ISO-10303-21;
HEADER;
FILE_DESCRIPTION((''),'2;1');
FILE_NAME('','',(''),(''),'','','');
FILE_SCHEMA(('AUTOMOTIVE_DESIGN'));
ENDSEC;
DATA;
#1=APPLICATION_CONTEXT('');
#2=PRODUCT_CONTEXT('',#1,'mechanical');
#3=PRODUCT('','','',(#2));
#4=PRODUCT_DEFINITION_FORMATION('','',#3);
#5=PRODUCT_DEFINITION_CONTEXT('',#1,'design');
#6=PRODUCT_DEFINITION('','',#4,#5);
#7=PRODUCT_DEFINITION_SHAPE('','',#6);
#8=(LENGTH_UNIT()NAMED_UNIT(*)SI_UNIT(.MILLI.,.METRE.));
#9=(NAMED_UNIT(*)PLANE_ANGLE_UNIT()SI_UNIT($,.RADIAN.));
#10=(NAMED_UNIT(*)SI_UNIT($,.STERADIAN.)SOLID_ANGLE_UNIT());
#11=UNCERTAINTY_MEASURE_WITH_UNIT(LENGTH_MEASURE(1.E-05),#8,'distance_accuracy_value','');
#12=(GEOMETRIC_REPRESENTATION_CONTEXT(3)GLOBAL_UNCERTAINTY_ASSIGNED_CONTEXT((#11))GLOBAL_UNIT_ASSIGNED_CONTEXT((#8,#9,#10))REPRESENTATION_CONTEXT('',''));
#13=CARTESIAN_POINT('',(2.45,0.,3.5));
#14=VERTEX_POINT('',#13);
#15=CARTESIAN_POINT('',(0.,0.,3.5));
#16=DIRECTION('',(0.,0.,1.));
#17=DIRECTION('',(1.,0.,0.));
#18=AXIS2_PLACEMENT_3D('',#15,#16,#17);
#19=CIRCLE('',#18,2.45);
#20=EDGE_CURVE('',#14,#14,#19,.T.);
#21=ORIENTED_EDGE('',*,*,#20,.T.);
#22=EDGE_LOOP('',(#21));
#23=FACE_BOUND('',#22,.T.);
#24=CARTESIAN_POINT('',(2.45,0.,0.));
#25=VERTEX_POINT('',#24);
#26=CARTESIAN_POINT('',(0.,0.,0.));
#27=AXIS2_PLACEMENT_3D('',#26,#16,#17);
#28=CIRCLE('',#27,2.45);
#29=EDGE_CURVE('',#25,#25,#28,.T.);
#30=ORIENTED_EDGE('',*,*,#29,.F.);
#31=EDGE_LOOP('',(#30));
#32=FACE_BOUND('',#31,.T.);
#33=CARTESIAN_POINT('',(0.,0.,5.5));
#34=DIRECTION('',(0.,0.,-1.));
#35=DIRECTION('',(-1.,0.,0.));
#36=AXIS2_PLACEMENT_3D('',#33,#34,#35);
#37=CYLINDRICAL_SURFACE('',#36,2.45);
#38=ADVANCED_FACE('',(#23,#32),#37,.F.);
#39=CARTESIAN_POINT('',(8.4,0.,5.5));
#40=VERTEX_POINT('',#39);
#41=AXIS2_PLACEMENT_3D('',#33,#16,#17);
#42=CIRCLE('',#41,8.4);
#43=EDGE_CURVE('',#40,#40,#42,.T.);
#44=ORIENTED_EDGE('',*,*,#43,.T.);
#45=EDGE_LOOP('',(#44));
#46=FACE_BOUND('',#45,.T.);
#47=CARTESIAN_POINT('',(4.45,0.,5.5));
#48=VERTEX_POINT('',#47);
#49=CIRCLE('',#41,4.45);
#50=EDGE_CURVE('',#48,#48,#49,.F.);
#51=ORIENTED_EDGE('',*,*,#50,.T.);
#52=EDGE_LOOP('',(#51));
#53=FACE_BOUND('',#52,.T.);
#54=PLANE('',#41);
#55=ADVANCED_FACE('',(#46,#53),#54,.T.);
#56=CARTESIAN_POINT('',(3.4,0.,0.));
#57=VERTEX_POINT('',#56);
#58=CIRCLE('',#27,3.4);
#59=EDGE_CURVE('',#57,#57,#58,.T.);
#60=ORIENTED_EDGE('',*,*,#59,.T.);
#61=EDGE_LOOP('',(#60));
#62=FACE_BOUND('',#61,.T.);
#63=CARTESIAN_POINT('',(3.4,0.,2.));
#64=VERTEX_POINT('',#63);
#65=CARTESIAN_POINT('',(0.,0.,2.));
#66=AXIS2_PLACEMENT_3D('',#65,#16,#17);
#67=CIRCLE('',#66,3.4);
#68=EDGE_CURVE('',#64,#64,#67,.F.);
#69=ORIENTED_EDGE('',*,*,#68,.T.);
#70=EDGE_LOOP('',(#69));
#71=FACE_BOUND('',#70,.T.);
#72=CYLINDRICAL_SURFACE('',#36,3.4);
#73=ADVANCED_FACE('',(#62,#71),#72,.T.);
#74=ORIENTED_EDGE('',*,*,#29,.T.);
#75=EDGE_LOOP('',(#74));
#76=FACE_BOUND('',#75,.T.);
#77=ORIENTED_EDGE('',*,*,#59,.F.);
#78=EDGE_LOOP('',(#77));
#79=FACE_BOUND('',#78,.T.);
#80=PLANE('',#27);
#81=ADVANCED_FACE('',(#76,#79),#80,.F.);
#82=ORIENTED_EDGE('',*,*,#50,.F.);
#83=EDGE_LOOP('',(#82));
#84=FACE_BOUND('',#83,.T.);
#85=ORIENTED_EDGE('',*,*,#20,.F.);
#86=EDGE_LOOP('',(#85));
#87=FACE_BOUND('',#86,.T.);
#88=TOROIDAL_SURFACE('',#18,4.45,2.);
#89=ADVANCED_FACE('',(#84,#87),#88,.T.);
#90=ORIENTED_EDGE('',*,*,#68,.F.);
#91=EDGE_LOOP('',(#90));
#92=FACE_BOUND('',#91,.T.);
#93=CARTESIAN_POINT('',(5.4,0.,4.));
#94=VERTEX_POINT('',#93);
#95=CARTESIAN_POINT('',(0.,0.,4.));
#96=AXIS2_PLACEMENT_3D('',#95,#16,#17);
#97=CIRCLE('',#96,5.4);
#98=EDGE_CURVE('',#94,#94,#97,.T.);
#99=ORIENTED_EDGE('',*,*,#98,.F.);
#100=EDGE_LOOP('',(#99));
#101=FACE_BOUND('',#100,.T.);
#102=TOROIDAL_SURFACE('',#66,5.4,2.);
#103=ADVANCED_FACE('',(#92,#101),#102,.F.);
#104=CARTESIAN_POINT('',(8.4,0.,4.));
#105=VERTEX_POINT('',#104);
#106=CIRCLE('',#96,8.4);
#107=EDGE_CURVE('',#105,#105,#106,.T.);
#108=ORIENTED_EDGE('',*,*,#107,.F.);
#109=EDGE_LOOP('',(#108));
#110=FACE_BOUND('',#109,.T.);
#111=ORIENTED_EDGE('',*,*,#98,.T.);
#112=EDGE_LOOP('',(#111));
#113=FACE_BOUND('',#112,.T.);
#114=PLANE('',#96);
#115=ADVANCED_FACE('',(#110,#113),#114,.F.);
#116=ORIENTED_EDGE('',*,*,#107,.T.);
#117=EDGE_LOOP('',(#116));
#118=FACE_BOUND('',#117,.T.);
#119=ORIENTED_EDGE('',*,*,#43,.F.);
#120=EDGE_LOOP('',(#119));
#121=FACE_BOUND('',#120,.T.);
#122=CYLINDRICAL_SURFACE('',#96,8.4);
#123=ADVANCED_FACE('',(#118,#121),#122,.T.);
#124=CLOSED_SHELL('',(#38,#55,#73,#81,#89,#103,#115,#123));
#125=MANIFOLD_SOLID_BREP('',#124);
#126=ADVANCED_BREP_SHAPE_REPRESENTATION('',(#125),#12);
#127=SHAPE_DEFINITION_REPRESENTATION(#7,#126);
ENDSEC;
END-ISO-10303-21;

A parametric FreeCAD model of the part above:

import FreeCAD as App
import Part
import Sketcher

V = App.Vector
Q = App.Units.Quantity


def edges_at(feature, points):
    """Names of the edges that pass closest to the given points."""
    edges = feature.Shape.Edges
    near = lambda p: min(range(len(edges)), key=lambda i: edges[i].distToShape(Part.Vertex(*p))[0])
    return sorted({f"Edge{near(p) + 1}" for p in points})

doc = App.newDocument("Part")
body = doc.addObject("PartDesign::Body", "Body")

# Sketch on XY plane
sketch1 = doc.addObject("Sketcher::SketchObject", "Sketch")
body.addObject(sketch1)
sketch1.AttachmentSupport = (doc.XY_Plane, [""])
sketch1.MapMode = "FlatFace"
sketch1.addGeometry([
    Part.Circle(V(0, 0, 0), V(0, 0, 1), 3.4),
    Part.Circle(V(0, 0, 0), V(0, 0, 1), 2.5),
], False)
sketch1.addConstraint([
    Sketcher.Constraint("Coincident", 0, 3, -1, 1),
    Sketcher.Constraint("Coincident", 1, 3, -1, 1),
    Sketcher.Constraint("Diameter", 0, Q("6.8 mm")),
    Sketcher.Constraint("Diameter", 1, Q("4.9 mm")),
])
pad1 = doc.addObject("PartDesign::Pad", "Pad")
body.addObject(pad1)
pad1.Profile = sketch1
pad1.Length = 5.5

# Sketch on XY plane
sketch2 = doc.addObject("Sketcher::SketchObject", "Sketch001")
body.addObject(sketch2)
sketch2.AttachmentSupport = (doc.XY_Plane, [""])
sketch2.MapMode = "FlatFace"
sketch2.AttachmentOffset = App.Placement(V(0, 0, 4), App.Rotation())
sketch2.addGeometry([
    Part.Circle(V(0, 0, 0), V(0, 0, 1), 8.4),
    Part.Circle(V(0, 0, 0), V(0, 0, 1), 3.4),
], False)
sketch2.addConstraint([
    Sketcher.Constraint("Coincident", 0, 3, -1, 1),
    Sketcher.Constraint("Coincident", 1, 3, -1, 1),
    Sketcher.Constraint("Diameter", 0, Q("16.8 mm")),
    Sketcher.Constraint("Diameter", 1, Q("6.8 mm")),
])
pad2 = doc.addObject("PartDesign::Pad", "Pad001")
body.addObject(pad2)
pad2.Profile = sketch2
pad2.Length = 1.5
doc.recompute()

fillet = doc.addObject("PartDesign::Fillet", "Fillet")
body.addObject(fillet)
fillet.Base = (pad2, edges_at(pad2, [(-3.4, 0, 4)]))
fillet.Radius = 2
doc.recompute()

fillet2 = doc.addObject("PartDesign::Fillet", "Fillet001")
body.addObject(fillet2)
fillet2.Base = (fillet, edges_at(fillet, [(-2.45, 0, 5.5)]))
fillet2.Radius = 2

doc.recompute()
